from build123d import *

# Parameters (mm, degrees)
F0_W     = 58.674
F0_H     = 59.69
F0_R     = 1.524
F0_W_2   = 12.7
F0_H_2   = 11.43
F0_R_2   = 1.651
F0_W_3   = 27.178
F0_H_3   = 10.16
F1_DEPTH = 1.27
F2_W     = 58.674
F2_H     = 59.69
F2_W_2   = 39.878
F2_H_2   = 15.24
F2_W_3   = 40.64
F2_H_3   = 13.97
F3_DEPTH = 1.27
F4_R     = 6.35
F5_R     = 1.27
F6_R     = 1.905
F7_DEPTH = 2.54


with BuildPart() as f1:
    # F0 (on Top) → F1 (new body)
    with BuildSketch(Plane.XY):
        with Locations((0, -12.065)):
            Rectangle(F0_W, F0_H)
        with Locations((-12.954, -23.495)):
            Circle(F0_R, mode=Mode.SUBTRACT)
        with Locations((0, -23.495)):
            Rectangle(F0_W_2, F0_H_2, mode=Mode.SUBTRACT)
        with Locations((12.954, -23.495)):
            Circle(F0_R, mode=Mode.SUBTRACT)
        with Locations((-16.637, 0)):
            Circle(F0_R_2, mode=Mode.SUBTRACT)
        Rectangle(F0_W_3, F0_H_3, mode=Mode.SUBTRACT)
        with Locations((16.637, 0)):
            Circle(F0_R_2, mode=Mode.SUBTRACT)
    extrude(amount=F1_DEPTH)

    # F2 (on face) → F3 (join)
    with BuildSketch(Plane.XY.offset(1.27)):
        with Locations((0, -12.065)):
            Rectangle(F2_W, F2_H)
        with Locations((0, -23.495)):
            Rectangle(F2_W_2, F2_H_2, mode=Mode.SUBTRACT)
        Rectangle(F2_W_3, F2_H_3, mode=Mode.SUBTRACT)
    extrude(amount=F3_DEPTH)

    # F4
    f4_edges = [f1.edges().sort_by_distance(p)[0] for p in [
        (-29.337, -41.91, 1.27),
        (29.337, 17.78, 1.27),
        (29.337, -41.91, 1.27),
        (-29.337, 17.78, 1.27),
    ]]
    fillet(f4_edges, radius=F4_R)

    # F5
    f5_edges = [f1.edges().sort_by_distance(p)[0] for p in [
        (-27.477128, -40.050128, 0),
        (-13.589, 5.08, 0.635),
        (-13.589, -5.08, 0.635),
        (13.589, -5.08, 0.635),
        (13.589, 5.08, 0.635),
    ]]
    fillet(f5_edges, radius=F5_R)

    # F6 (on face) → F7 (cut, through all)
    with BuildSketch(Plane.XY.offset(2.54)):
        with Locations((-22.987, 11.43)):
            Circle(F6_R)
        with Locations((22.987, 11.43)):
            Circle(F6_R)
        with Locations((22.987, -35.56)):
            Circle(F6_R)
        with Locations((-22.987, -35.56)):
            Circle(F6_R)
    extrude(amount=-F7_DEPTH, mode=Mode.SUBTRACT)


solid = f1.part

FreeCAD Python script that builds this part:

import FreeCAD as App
import Part
import Sketcher

V = App.Vector
Q = App.Units.Quantity


def edges_at(feature, points):
    """Names of the edges that pass closest to the given points."""
    edges = feature.Shape.Edges
    near = lambda p: min(range(len(edges)), key=lambda i: edges[i].distToShape(Part.Vertex(*p))[0])
    return sorted({f"Edge{near(p) + 1}" for p in points})

doc = App.newDocument("Part")
params = doc.addObject("Spreadsheet::Sheet", "Params")
for row, (alias, value) in enumerate([
    ("sketch1_diameter", "0.12 in"),
    ("sketch1_diameter2", "0.13 in"),
    ("sketch1_width", "0.5 in"),
    ("sketch1_height", "0.4 in"),
    ("sketch1_width2", "2.31 in"),
    ("pad1_length", "0.05 in"),
    ("sketch2_width", "1.6 in"),
    ("sketch2_height", "0.6 in"),
    ("sketch2_width2", "2.31 in"),
    ("sketch2_width3", "1.57 in"),
    ("sketch2_height2", "2.35 in"),
    ("pad2_length", "0.05 in"),
    ("fillet_radius", "0.25 in"),
    ("fillet2_radius", "0.05 in"),
    ("sketch3_diameter", "0.15 in"),
], start=1):
    params.set(f"A{row}", alias)
    params.set(f"B{row}", "=" + value)
    params.setAlias(f"B{row}", alias)

body = doc.addObject("PartDesign::Body", "Body")

sketch1 = body.newObject("Sketcher::SketchObject", "Sketch")
sketch1.AttachmentSupport = (doc.getObject("XY_Plane"), [""])
sketch1.MapMode = "FlatFace"
sketch1.addGeometry([
    Part.LineSegment(V(-29.3, 17.8, 0), V(-29.3, -41.9, 0)),
    Part.LineSegment(V(-29.3, -41.9, 0), V(29.3, -41.9, 0)),
    Part.LineSegment(V(29.3, -41.9, 0), V(29.3, 17.8, 0)),
    Part.LineSegment(V(29.3, 17.8, 0), V(-29.3, 17.8, 0)),
    Part.Circle(V(-13, -23.5, 0), V(0, 0, 1), 1.5),
    Part.LineSegment(V(6.3, -29.2, 0), V(-6.3, -29.2, 0)),
    Part.LineSegment(V(-6.3, -29.2, 0), V(-6.3, -17.8, 0)),
    Part.LineSegment(V(-6.3, -17.8, 0), V(6.3, -17.8, 0)),
    Part.LineSegment(V(6.3, -17.8, 0), V(6.3, -29.2, 0)),
    Part.Circle(V(13, -23.5, 0), V(0, 0, 1), 1.5),
    Part.Circle(V(-16.6, 0, 0), V(0, 0, 1), 1.7),
    Part.LineSegment(V(13.6, -5.1, 0), V(-13.6, -5.1, 0)),
    Part.LineSegment(V(-13.6, -5.1, 0), V(-13.6, 5.1, 0)),
    Part.LineSegment(V(-13.6, 5.1, 0), V(13.6, 5.1, 0)),
    Part.LineSegment(V(13.6, 5.1, 0), V(13.6, -5.1, 0)),
    Part.Circle(V(16.6, 0, 0), V(0, 0, 1), 1.7),
], False)
sketch1.addConstraint([
    Sketcher.Constraint("Coincident", 0, 2, 1, 1),
    Sketcher.Constraint("Coincident", 1, 2, 2, 1),
    Sketcher.Constraint("Coincident", 2, 2, 3, 1),
    Sketcher.Constraint("Coincident", 3, 2, 0, 1),
    Sketcher.Constraint("Coincident", 5, 2, 6, 1),
    Sketcher.Constraint("Coincident", 6, 2, 7, 1),
    Sketcher.Constraint("Coincident", 7, 2, 8, 1),
    Sketcher.Constraint("Coincident", 8, 2, 5, 1),
    Sketcher.Constraint("Coincident", 11, 2, 12, 1),
    Sketcher.Constraint("Coincident", 12, 2, 13, 1),
    Sketcher.Constraint("Coincident", 13, 2, 14, 1),
    Sketcher.Constraint("Coincident", 14, 2, 11, 1),
    Sketcher.Constraint("Vertical", 0),
    Sketcher.Constraint("Horizontal", 1),
    Sketcher.Constraint("Vertical", 2),
    Sketcher.Constraint("Horizontal", 3),
    Sketcher.Constraint("Horizontal", 5),
    Sketcher.Constraint("Vertical", 6),
    Sketcher.Constraint("Horizontal", 7),
    Sketcher.Constraint("Vertical", 8),
    Sketcher.Constraint("Horizontal", 11),
    Sketcher.Constraint("Vertical", 12),
    Sketcher.Constraint("Horizontal", 13),
    Sketcher.Constraint("Vertical", 14),
    Sketcher.Constraint("Equal", 4, 9),
    Sketcher.Constraint("Equal", 10, 15),
    Sketcher.Constraint("Symmetric", 10, 3, 15, 3, -1, 1),
    Sketcher.Constraint("Symmetric", 11, 2, 13, 2, -1, 1),
    Sketcher.Constraint("Symmetric", 4, 3, 9, 3, -2),
    Sketcher.Constraint("PointOnObject", 10, 3, -1),
    Sketcher.Constraint("Diameter", 4, Q("0.12 in")),
    Sketcher.Constraint("Diameter", 10, Q("0.13 in")),
    Sketcher.Constraint("DistanceX", 5, 2, 5, 1, Q("0.5 in")),
    Sketcher.Constraint("DistanceY", 12, 1, 12, 2, Q("0.4 in")),
    Sketcher.Constraint("DistanceX", 1, 1, 1, 2, Q("2.31 in")),
    Sketcher.Constraint("DistanceX", 11, 2, 11, 1, Q("1.07 in")),
    Sketcher.Constraint("DistanceY", 0, 2, 0, 1, Q("2.35 in")),
    Sketcher.Constraint("DistanceY", 6, 1, 6, 2, Q("0.45 in")),
    Sketcher.Constraint("DistanceY", -1, 1, 2, 2, Q("0.7 in")),
    Sketcher.Constraint("DistanceY", 6, 2, -1, 1, Q("0.7 in")),
    Sketcher.Constraint("DistanceX", 0, 2, 10, 3, Q("0.5 in")),
    Sketcher.Constraint("DistanceX", 15, 3, 1, 2, Q("0.5 in")),
    Sketcher.Constraint("DistanceX", 4, 3, -1, 1, Q("0.51 in")),
    Sketcher.Constraint("DistanceX", 5, 2, -1, 1, Q("0.25 in")),
    Sketcher.Constraint("DistanceY", 4, 3, -1, 1, Q("0.925 in")),
])
sketch1.setExpression("Constraints[30]", "Params.sketch1_diameter")
sketch1.setExpression("Constraints[31]", "Params.sketch1_diameter2")
sketch1.setExpression("Constraints[32]", "Params.sketch1_width")
sketch1.setExpression("Constraints[33]", "Params.sketch1_height")
sketch1.setExpression("Constraints[34]", "Params.sketch1_width2")
pad1 = body.newObject("PartDesign::Pad", "Pad")
pad1.Profile = sketch1
pad1.setExpression("Length", "Params.pad1_length")

sketch2 = body.newObject("Sketcher::SketchObject", "Sketch001")
sketch2.AttachmentSupport = (doc.getObject("XY_Plane"), [""])
sketch2.MapMode = "FlatFace"
sketch2.AttachmentOffset = App.Placement(V(0, 0, 0.05 * 25.4), App.Rotation())
sketch2.addGeometry([
    Part.LineSegment(V(-29, 18, 0), V(-29, -42, 0)),
    Part.LineSegment(V(-29, -42, 0), V(29, -42, 0)),
    Part.LineSegment(V(29, -42, 0), V(29, 18, 0)),
    Part.LineSegment(V(29, 18, 0), V(-29, 18, 0)),
    Part.LineSegment(V(20, -31, 0), V(-20, -31, 0)),
    Part.LineSegment(V(-20, -31, 0), V(-20, -16, 0)),
    Part.LineSegment(V(-20, -16, 0), V(20, -16, 0)),
    Part.LineSegment(V(20, -16, 0), V(20, -31, 0)),
    Part.LineSegment(V(20, -7, 0), V(-20, -7, 0)),
    Part.LineSegment(V(-20, -7, 0), V(-20, 7, 0)),
    Part.LineSegment(V(-20, 7, 0), V(20, 7, 0)),
    Part.LineSegment(V(20, 7, 0), V(20, -7, 0)),
], False)
sketch2.addConstraint([
    Sketcher.Constraint("Coincident", 0, 2, 1, 1),
    Sketcher.Constraint("Coincident", 1, 2, 2, 1),
    Sketcher.Constraint("Coincident", 2, 2, 3, 1),
    Sketcher.Constraint("Coincident", 3, 2, 0, 1),
    Sketcher.Constraint("Coincident", 4, 2, 5, 1),
    Sketcher.Constraint("Coincident", 5, 2, 6, 1),
    Sketcher.Constraint("Coincident", 6, 2, 7, 1),
    Sketcher.Constraint("Coincident", 7, 2, 4, 1),
    Sketcher.Constraint("Coincident", 8, 2, 9, 1),
    Sketcher.Constraint("Coincident", 9, 2, 10, 1),
    Sketcher.Constraint("Coincident", 10, 2, 11, 1),
    Sketcher.Constraint("Coincident", 11, 2, 8, 1),
    Sketcher.Constraint("Vertical", 0),
    Sketcher.Constraint("Horizontal", 1),
    Sketcher.Constraint("Vertical", 2),
    Sketcher.Constraint("Horizontal", 3),
    Sketcher.Constraint("Horizontal", 4),
    Sketcher.Constraint("Vertical", 5),
    Sketcher.Constraint("Horizontal", 6),
    Sketcher.Constraint("Vertical", 7),
    Sketcher.Constraint("Horizontal", 8),
    Sketcher.Constraint("Vertical", 9),
    Sketcher.Constraint("Horizontal", 10),
    Sketcher.Constraint("Vertical", 11),
    Sketcher.Constraint("Symmetric", 8, 2, 10, 2, -1, 1),
    Sketcher.Constraint("DistanceX", 8, 2, 8, 1, Q("1.6 in")),
    Sketcher.Constraint("DistanceY", 5, 1, 5, 2, Q("0.6 in")),
    Sketcher.Constraint("DistanceX", 1, 1, 1, 2, Q("2.31 in")),
    Sketcher.Constraint("DistanceX", 4, 2, 4, 1, Q("1.57 in")),
    Sketcher.Constraint("DistanceY", 0, 2, 0, 1, Q("2.35 in")),
    Sketcher.Constraint("DistanceY", 9, 1, 9, 2, Q("0.55 in")),
    Sketcher.Constraint("DistanceY", -1, 1, 2, 2, Q("0.7 in")),
    Sketcher.Constraint("DistanceY", 5, 2, 9, 2, Q("0.9 in")),
    Sketcher.Constraint("DistanceX", 0, 2, 4, 2, Q("0.37 in")),
    Sketcher.Constraint("DistanceX", 0, 2, -1, 1, Q("1.155 in")),
])
sketch2.setExpression("Constraints[25]", "Params.sketch2_width")
sketch2.setExpression("Constraints[26]", "Params.sketch2_height")
sketch2.setExpression("Constraints[27]", "Params.sketch2_width2")
sketch2.setExpression("Constraints[28]", "Params.sketch2_width3")
sketch2.setExpression("Constraints[29]", "Params.sketch2_height2")
pad2 = body.newObject("PartDesign::Pad", "Pad001")
pad2.Profile = sketch2
pad2.setExpression("Length", "Params.pad2_length")
doc.recompute()

fillet = body.newObject("PartDesign::Fillet", "Fillet")
fillet.Base = (pad2, edges_at(pad2, [
    (-29.337, -41.91, 1.27),
    (29.337, 17.78, 1.27),
    (29.337, -41.91, 1.27),
    (-29.337, 17.78, 1.27),
]))
fillet.setExpression("Radius", "Params.fillet_radius")
doc.recompute()

fillet2 = body.newObject("PartDesign::Fillet", "Fillet001")
fillet2.Base = (fillet, edges_at(fillet, [
    (-27.477, -40.05, 0),
    (-13.589, 5.08, 0.635),
    (-13.589, -5.08, 0.635),
    (13.589, -5.08, 0.635),
    (13.589, 5.08, 0.635),
]))
fillet2.setExpression("Radius", "Params.fillet2_radius")

sketch3 = body.newObject("Sketcher::SketchObject", "Sketch002")
sketch3.AttachmentSupport = (doc.getObject("XY_Plane"), [""])
sketch3.MapMode = "FlatFace"
sketch3.AttachmentOffset = App.Placement(V(0, 0, 0.1 * 25.4), App.Rotation())
sketch3.addGeometry([
    Part.Circle(V(-23, 11.4, 0), V(0, 0, 1), 1.9),
    Part.Circle(V(23, 11.4, 0), V(0, 0, 1), 1.9),
    Part.Circle(V(23, -35.6, 0), V(0, 0, 1), 1.9),
    Part.Circle(V(-23, -35.6, 0), V(0, 0, 1), 1.9),
], False)
sketch3.addConstraint([
    Sketcher.Constraint("Equal", 0, 1),
    Sketcher.Constraint("Equal", 1, 2),
    Sketcher.Constraint("Equal", 2, 3),
    Sketcher.Constraint("Symmetric", 0, 3, 1, 3, -2),
    Sketcher.Constraint("Symmetric", 2, 3, 3, 3, -2),
    Sketcher.Constraint("Vertical", 1, 3, 2, 3),
    Sketcher.Constraint("Diameter", 0, Q("0.15 in")),
    Sketcher.Constraint("DistanceY", 2, 3, -1, 1, Q("1.4 in")),
    Sketcher.Constraint("DistanceY", -1, 1, 0, 3, Q("0.45 in")),
    Sketcher.Constraint("DistanceX", 0, 3, 1, 3, Q("1.81 in")),
])
sketch3.setExpression("Constraints[6]", "Params.sketch3_diameter")
pocket1 = body.newObject("PartDesign::Pocket", "Pocket")
pocket1.Profile = sketch3
pocket1.Type = "ThroughAll"

doc.recompute()
